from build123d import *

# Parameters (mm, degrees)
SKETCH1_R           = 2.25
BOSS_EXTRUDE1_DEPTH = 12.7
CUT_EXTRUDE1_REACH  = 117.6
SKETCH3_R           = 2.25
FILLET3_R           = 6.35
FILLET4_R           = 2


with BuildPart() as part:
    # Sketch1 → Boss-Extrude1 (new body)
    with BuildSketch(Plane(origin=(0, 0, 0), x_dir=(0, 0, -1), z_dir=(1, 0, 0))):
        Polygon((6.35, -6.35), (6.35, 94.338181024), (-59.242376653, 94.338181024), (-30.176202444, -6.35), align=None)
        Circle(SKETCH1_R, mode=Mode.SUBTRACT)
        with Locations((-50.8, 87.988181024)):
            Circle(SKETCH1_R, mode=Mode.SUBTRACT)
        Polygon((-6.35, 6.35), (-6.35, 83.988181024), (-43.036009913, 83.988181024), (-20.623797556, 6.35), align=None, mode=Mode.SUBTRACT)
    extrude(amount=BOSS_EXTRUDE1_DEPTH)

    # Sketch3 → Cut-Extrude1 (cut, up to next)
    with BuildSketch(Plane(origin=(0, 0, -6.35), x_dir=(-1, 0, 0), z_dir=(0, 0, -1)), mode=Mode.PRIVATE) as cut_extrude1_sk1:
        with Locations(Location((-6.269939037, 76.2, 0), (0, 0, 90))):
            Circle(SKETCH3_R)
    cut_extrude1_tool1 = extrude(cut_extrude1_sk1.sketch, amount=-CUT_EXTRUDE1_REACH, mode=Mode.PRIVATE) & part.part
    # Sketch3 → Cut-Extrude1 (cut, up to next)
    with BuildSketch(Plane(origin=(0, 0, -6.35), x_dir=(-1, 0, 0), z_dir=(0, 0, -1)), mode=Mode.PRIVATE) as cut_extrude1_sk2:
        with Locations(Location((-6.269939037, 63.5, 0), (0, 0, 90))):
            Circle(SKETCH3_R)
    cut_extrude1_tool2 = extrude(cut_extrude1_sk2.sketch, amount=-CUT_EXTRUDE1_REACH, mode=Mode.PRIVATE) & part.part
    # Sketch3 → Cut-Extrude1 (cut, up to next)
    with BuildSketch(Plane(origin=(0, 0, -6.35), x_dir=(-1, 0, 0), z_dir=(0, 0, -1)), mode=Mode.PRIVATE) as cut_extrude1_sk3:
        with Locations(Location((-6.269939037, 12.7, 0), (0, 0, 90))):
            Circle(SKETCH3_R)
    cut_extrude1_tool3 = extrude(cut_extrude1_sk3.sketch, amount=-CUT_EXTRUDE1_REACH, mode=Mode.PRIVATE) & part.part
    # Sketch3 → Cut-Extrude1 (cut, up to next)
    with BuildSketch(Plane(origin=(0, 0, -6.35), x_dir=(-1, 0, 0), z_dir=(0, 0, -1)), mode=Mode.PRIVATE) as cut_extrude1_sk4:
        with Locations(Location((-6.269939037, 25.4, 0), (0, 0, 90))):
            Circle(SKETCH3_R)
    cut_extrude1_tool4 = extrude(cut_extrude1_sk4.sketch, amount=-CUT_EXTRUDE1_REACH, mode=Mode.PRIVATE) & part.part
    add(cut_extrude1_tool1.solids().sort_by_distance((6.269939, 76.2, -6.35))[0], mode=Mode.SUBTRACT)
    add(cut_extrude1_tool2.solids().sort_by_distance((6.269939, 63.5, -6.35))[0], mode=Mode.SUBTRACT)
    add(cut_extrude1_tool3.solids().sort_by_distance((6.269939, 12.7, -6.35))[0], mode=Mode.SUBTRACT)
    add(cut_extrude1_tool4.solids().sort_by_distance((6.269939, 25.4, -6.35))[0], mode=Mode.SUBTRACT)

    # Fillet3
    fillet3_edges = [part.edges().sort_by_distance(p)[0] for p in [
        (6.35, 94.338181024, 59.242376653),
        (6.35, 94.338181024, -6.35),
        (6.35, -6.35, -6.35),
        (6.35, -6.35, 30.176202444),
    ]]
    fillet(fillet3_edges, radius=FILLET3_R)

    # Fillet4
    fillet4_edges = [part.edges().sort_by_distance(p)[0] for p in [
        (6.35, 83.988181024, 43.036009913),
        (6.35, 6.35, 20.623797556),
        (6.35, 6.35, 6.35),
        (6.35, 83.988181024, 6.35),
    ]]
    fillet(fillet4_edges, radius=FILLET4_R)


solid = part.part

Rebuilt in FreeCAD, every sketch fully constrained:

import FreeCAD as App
import Part
import Sketcher
from FreeCAD import Vector
Q = App.Units.Quantity


def edges_at(feature, points):
    """Names of the edges that pass closest to the given points."""
    edges = feature.Shape.Edges
    near = lambda p: min(range(len(edges)), key=lambda i: edges[i].distToShape(Part.Vertex(*p))[0])
    return sorted({f"Edge{near(p) + 1}" for p in points})


def add_polygon(sketch, points):
    """Adds a closed chain of lines whose ends are joined by coincident constraints."""
    first, n = sketch.GeometryCount, len(points)
    for a, b in zip(points, points[1:] + points[:1]):
        sketch.addGeometry(Part.LineSegment(App.Vector(*a, 0), App.Vector(*b, 0)), False)
    for i in range(n):
        sketch.addConstraint(Sketcher.Constraint("Coincident", first + i, 2, first + (i + 1) % n, 1))

doc = App.newDocument("Part")
body = doc.addObject("PartDesign::Body", "Body")

sketch1 = doc.addObject("Sketcher::SketchObject", "Sketch")
body.addObject(sketch1)
sketch1.AttachmentSupport = (doc.YZ_Plane, [""])
sketch1.MapMode = "FlatFace"
add_polygon(sketch1, [(-6.3, -6.3), (94.3, -6.3), (94.3, 59.2), (-6.3, 30.2)])
sketch1.addGeometry(Part.Circle(Vector(0, 0, 0), Vector(0, 0, 1), 2.2), False)
sketch1.addGeometry(Part.Circle(Vector(88, 50.8, 0), Vector(0, 0, 1), 2.2), False)
add_polygon(sketch1, [(84, 6.3), (6.3, 6.3), (6.3, 20.6), (84, 43)])
sketch1.addConstraint([
    Sketcher.Constraint("Horizontal", 0),
    Sketcher.Constraint("Vertical", 1),
    Sketcher.Constraint("Vertical", 3),
    Sketcher.Constraint("Horizontal", 6),
    Sketcher.Constraint("Vertical", 7),
    Sketcher.Constraint("Vertical", 9),
    Sketcher.Constraint("Coincident", 4, 3, -1, 1),
    Sketcher.Constraint("Equal", 4, 5),
    Sketcher.Constraint("Symmetric", 3, 2, 6, 2, -1, 1),
    Sketcher.Constraint("Parallel", 2, 8),
    Sketcher.Constraint("Diameter", 4, Q("4.5 mm")),
    Sketcher.Constraint("DistanceX", 8, 2, 5, 3, Q("4 mm")),
    Sketcher.Constraint("DistanceY", -1, 1, 5, 3, Q("50.8 mm")),
    Sketcher.Constraint("DistanceX", 3, 2, 6, 2, Q("12.7 mm")),
    Sketcher.Constraint("DistanceY", 3, 2, 6, 2, Q("12.7 mm")),
    Sketcher.Constraint("DistanceX", 5, 3, 0, 2, Q("6.35 mm")),
    Sketcher.Constraint("DistanceX", 0, 1, 0, 2, Q("100.688181 mm")),
    Sketcher.Constraint("DistanceY", 9, 2, 9, 1, Q("36.68601 mm")),
    Sketcher.Constraint("Distance", 2, Q("104.799581 mm")),
    Sketcher.Constraint("DistanceY", 1, 1, 1, 2, Q("65.592377 mm")),
])
pad1 = doc.addObject("PartDesign::Pad", "Pad")
body.addObject(pad1)
pad1.Profile = sketch1
pad1.Length = 12.7

sketch2 = doc.addObject("Sketcher::SketchObject", "Sketch001")
body.addObject(sketch2)
sketch2.AttachmentSupport = (doc.XY_Plane, [""])
sketch2.MapMode = "FlatFace"
sketch2.AttachmentOffset = App.Placement(Vector(0, 0, -6.35), App.Rotation())
sketch2.addGeometry(Part.Circle(Vector(6.3, 76.2, 0), Vector(0, 0, 1), 2.2), False)
sketch2.addConstraint([
    Sketcher.Constraint("Diameter", 0, Q("4.5 mm")),
    Sketcher.Constraint("DistanceY", -1, 1, 0, 3, Q("76.2 mm")),
    Sketcher.Constraint("DistanceX", -1, 1, 0, 3, Q("6.269939 mm")),
])
pocket1 = doc.addObject("PartDesign::Pocket", "Pocket")
body.addObject(pocket1)
pocket1.Profile = sketch2
pocket1.Type = "UpToFirst"
pocket1.Reversed = True

sketch3 = doc.addObject("Sketcher::SketchObject", "Sketch002")
body.addObject(sketch3)
sketch3.AttachmentSupport = (doc.XY_Plane, [""])
sketch3.MapMode = "FlatFace"
sketch3.AttachmentOffset = App.Placement(Vector(0, 0, -6.35), App.Rotation())
sketch3.addGeometry(Part.Circle(Vector(6.3, 63.5, 0), Vector(0, 0, 1), 2.2), False)
sketch3.addConstraint([
    Sketcher.Constraint("Diameter", 0, Q("4.5 mm")),
    Sketcher.Constraint("DistanceY", -1, 1, 0, 3, Q("63.5 mm")),
    Sketcher.Constraint("DistanceX", -1, 1, 0, 3, Q("6.269939 mm")),
])
pocket2 = doc.addObject("PartDesign::Pocket", "Pocket001")
body.addObject(pocket2)
pocket2.Profile = sketch3
pocket2.Type = "UpToFirst"
pocket2.Reversed = True

sketch4 = doc.addObject("Sketcher::SketchObject", "Sketch003")
body.addObject(sketch4)
sketch4.AttachmentSupport = (doc.XY_Plane, [""])
sketch4.MapMode = "FlatFace"
sketch4.AttachmentOffset = App.Placement(Vector(0, 0, -6.35), App.Rotation())
sketch4.addGeometry(Part.Circle(Vector(6.3, 12.7, 0), Vector(0, 0, 1), 2.2), False)
sketch4.addConstraint([
    Sketcher.Constraint("Diameter", 0, Q("4.5 mm")),
    Sketcher.Constraint("DistanceY", -1, 1, 0, 3, Q("12.7 mm")),
    Sketcher.Constraint("DistanceX", -1, 1, 0, 3, Q("6.269939 mm")),
])
pocket3 = doc.addObject("PartDesign::Pocket", "Pocket002")
body.addObject(pocket3)
pocket3.Profile = sketch4
pocket3.Type = "UpToFirst"
pocket3.Reversed = True

sketch5 = doc.addObject("Sketcher::SketchObject", "Sketch004")
body.addObject(sketch5)
sketch5.AttachmentSupport = (doc.XY_Plane, [""])
sketch5.MapMode = "FlatFace"
sketch5.AttachmentOffset = App.Placement(Vector(0, 0, -6.35), App.Rotation())
sketch5.addGeometry(Part.Circle(Vector(6.3, 25.4, 0), Vector(0, 0, 1), 2.2), False)
sketch5.addConstraint([
    Sketcher.Constraint("Diameter", 0, Q("4.5 mm")),
    Sketcher.Constraint("DistanceY", -1, 1, 0, 3, Q("25.4 mm")),
    Sketcher.Constraint("DistanceX", -1, 1, 0, 3, Q("6.269939 mm")),
])
pocket4 = doc.addObject("PartDesign::Pocket", "Pocket003")
body.addObject(pocket4)
pocket4.Profile = sketch5
pocket4.Type = "UpToFirst"
pocket4.Reversed = True
doc.recompute()

fillet = doc.addObject("PartDesign::Fillet", "Fillet")
body.addObject(fillet)
fillet.Base = (pocket4, edges_at(pocket4, [
    (6.35, 94.338, 59.242),
    (6.35, 94.338, -6.35),
    (6.35, -6.35, -6.35),
    (6.35, -6.35, 30.176),
]))
fillet.Radius = 6.35
doc.recompute()

fillet2 = doc.addObject("PartDesign::Fillet", "Fillet001")
body.addObject(fillet2)
fillet2.Base = (fillet, edges_at(fillet, [
    (6.35, 83.988, 43.036),
    (6.35, 6.35, 20.624),
    (6.35, 6.35, 6.35),
    (6.35, 83.988, 6.35),
]))
fillet2.Radius = 2

doc.recompute()
